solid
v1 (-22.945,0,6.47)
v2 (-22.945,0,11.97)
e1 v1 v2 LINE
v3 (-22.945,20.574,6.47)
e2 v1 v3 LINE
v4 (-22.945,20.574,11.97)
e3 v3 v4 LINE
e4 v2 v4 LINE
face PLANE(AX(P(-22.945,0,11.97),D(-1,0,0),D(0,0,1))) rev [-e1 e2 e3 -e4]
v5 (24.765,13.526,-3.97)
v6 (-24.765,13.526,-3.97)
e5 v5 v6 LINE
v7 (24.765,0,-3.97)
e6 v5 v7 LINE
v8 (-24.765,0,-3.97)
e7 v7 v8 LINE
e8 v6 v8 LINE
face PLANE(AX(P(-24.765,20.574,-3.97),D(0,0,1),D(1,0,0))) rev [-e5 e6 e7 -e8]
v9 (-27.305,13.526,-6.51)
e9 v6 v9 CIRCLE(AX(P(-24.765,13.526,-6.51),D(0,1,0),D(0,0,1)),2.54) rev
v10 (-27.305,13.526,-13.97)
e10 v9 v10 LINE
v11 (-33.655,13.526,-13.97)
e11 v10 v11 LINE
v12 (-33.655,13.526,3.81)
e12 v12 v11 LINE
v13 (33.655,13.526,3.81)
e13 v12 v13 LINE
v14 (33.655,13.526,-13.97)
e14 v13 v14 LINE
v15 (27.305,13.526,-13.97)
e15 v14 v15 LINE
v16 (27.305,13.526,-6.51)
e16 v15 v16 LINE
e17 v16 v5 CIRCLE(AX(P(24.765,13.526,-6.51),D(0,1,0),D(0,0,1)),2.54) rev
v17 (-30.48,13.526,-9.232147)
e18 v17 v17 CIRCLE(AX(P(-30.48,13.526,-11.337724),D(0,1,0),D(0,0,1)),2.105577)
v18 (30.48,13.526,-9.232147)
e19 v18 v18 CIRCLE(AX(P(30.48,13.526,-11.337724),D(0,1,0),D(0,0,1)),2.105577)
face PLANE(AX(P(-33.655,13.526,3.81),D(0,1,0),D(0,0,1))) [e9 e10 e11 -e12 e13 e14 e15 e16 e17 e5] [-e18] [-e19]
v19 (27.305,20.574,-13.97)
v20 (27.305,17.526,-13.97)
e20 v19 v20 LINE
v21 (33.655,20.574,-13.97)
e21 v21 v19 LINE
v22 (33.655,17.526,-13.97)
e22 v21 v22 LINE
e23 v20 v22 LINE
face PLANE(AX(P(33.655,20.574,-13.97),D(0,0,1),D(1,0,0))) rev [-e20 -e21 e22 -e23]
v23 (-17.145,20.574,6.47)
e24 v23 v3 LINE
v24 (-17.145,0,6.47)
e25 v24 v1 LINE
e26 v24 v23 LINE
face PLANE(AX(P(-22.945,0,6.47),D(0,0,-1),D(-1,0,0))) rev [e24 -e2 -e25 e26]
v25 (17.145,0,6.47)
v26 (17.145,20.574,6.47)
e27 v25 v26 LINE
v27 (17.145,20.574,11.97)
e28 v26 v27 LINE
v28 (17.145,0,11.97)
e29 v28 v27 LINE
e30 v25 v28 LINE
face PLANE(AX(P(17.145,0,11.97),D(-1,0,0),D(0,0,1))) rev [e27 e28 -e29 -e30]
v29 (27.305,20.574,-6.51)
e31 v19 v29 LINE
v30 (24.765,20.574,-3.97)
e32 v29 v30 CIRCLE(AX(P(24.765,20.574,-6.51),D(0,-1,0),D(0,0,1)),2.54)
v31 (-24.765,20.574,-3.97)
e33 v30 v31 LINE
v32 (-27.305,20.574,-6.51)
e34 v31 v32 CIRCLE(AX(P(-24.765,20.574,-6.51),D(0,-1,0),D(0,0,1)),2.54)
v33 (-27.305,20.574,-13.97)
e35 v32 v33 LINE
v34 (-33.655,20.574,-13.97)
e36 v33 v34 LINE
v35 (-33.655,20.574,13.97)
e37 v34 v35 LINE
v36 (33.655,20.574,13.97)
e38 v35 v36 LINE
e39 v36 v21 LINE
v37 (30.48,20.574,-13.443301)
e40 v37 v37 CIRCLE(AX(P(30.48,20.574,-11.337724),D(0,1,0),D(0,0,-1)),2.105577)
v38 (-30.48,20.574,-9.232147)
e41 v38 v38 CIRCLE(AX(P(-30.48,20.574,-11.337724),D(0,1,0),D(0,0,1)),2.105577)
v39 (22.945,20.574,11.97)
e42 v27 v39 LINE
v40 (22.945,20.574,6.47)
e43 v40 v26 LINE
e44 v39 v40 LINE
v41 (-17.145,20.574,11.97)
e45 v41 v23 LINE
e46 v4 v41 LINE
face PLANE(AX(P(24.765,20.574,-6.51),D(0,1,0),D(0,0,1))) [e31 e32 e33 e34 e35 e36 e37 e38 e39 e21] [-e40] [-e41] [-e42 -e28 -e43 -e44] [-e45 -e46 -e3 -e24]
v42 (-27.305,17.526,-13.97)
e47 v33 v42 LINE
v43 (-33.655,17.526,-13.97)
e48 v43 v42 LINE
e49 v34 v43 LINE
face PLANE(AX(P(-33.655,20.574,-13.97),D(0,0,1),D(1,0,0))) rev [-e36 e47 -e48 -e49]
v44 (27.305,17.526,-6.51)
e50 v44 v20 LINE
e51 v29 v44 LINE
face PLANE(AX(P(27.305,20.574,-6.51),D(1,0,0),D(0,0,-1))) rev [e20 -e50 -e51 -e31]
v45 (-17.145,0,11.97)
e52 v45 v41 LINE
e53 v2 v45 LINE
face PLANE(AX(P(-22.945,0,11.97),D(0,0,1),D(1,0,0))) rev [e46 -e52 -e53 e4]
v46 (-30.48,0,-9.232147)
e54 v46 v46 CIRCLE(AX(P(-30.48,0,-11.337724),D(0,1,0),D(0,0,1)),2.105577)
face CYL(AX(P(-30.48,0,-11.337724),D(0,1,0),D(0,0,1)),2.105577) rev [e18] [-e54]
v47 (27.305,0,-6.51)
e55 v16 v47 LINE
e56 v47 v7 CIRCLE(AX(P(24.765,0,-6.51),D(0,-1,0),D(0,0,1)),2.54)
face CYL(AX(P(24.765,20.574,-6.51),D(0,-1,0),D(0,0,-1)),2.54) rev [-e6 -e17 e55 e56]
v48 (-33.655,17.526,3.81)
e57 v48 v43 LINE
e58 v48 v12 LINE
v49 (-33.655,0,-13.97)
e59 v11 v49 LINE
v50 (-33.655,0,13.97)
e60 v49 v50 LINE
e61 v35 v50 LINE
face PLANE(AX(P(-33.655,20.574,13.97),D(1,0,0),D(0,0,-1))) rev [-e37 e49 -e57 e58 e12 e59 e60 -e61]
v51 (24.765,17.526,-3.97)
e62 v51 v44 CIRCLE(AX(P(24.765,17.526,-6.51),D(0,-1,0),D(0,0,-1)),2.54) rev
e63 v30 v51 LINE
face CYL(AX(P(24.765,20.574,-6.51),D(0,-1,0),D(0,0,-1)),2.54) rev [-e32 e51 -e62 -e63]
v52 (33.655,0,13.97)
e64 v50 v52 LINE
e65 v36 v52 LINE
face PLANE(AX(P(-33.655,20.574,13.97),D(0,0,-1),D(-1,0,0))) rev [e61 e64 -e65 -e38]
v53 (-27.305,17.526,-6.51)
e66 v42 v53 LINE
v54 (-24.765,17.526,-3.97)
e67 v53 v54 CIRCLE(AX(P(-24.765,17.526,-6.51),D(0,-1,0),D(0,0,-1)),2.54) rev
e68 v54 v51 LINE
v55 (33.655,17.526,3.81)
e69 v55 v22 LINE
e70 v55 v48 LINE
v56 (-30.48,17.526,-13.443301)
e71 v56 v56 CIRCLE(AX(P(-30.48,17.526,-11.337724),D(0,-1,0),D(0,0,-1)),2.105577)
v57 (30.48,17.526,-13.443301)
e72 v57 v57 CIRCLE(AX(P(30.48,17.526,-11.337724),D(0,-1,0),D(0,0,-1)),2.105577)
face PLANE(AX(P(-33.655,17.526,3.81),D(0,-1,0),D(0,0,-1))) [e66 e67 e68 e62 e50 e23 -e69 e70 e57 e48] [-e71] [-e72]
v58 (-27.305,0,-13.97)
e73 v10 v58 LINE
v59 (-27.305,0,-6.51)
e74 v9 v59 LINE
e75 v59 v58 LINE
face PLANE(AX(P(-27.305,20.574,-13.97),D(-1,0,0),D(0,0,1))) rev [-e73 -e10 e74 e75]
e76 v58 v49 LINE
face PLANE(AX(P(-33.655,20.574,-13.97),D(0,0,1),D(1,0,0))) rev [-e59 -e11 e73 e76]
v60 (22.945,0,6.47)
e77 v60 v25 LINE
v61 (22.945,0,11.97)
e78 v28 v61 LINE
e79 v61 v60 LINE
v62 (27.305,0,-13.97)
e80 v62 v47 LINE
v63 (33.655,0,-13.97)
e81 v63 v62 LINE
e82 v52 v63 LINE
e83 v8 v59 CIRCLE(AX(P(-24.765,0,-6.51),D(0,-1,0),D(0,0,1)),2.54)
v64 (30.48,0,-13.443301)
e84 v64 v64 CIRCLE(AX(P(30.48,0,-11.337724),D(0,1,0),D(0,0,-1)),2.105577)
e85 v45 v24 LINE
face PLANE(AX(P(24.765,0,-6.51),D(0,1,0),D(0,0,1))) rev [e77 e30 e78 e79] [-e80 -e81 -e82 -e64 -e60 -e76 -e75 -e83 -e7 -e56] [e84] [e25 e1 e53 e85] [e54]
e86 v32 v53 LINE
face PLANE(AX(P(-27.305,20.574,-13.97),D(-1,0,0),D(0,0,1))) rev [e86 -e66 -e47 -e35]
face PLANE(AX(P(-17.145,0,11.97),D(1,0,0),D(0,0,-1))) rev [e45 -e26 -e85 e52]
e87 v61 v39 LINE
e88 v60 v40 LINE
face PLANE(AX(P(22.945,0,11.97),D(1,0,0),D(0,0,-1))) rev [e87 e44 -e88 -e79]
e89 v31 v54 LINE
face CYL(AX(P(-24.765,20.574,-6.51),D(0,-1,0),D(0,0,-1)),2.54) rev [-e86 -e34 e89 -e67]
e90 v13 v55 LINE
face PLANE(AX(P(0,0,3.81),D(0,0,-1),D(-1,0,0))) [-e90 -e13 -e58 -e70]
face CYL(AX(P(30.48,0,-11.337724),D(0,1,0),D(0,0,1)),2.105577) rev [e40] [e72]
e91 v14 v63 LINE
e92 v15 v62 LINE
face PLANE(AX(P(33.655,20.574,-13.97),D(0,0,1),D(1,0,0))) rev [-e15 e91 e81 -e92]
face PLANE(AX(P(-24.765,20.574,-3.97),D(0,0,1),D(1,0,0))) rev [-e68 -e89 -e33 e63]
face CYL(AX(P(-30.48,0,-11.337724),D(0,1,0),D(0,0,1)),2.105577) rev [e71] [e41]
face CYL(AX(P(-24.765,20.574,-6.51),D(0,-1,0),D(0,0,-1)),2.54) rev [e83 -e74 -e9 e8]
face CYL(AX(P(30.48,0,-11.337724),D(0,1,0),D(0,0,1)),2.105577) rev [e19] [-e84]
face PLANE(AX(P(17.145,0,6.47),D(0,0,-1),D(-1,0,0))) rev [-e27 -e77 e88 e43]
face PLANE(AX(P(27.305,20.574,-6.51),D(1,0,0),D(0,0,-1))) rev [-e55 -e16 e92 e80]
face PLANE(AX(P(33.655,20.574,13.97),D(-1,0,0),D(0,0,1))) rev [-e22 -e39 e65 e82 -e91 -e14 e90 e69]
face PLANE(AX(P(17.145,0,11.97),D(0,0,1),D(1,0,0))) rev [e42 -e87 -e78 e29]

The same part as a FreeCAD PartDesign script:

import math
import FreeCAD as App
import Part
import Sketcher
Q = App.Units.Quantity

doc = App.newDocument("Part")
body = doc.addObject("PartDesign::Body", "Body")

# Sketch on XZ plane
sketch1 = body.newObject("Sketcher::SketchObject", "Sketch")
sketch1.AttachmentSupport = (doc.getObject("XZ_Plane"), [""])
sketch1.MapMode = "FlatFace"
sketch1.addGeometry([
    Part.LineSegment(App.Vector(-27.3, -14, 0), App.Vector(-33.7, -14, 0)),  # 0
    Part.LineSegment(App.Vector(-33.7, -14, 0), App.Vector(-33.7, 14, 0)),  # 1
    Part.LineSegment(App.Vector(-33.7, 14, 0), App.Vector(33.7, 14, 0)),  # 2
    Part.LineSegment(App.Vector(33.7, 14, 0), App.Vector(33.7, -14, 0)),  # 3
    Part.LineSegment(App.Vector(33.7, -14, 0), App.Vector(27.3, -14, 0)),  # 4
    Part.LineSegment(App.Vector(27.3, -14, 0), App.Vector(27.3, -6.5, 0)),  # 5
    Part.ArcOfCircle(Part.Circle(App.Vector(24.8, -6.5, 0), App.Vector(0, 0, 1), 2.5), math.radians(0), math.radians(90)),  # 6
    Part.LineSegment(App.Vector(24.8, -4, 0), App.Vector(-24.8, -4, 0)),  # 7
    Part.ArcOfCircle(Part.Circle(App.Vector(-24.8, -6.5, 0), App.Vector(0, 0, 1), 2.5), math.radians(90), math.radians(180)),  # 8
    Part.LineSegment(App.Vector(-27.3, -6.5, 0), App.Vector(-27.3, -14, 0)),  # 9
], False)
sketch1.addConstraint([
    Sketcher.Constraint("Coincident", 0, 2, 1, 1),
    Sketcher.Constraint("Coincident", 1, 2, 2, 1),
    Sketcher.Constraint("Coincident", 2, 2, 3, 1),
    Sketcher.Constraint("Coincident", 3, 2, 4, 1),
    Sketcher.Constraint("Coincident", 4, 2, 5, 1),
    Sketcher.Constraint("Tangent", 5, 2, 6, 1),
    Sketcher.Constraint("Tangent", 6, 2, 7, 1),
    Sketcher.Constraint("Tangent", 7, 2, 8, 1),
    Sketcher.Constraint("Tangent", 8, 2, 9, 1),
    Sketcher.Constraint("Coincident", 9, 2, 0, 1),
    Sketcher.Constraint("Horizontal", 0),
    Sketcher.Constraint("Vertical", 1),
    Sketcher.Constraint("Horizontal", 2),
    Sketcher.Constraint("Vertical", 3),
    Sketcher.Constraint("Horizontal", 4),
    Sketcher.Constraint("Vertical", 5),
    Sketcher.Constraint("Horizontal", 7),
    Sketcher.Constraint("Vertical", 9),
    Sketcher.Constraint("Equal", 6, 8),
    Sketcher.Constraint("Symmetric", 0, 2, 2, 2, -1, 1),
    Sketcher.Constraint("Symmetric", 4, 2, 9, 2, -2),
    Sketcher.Constraint("Radius", 6, Q("0.1 in")),
    Sketcher.Constraint("DistanceY", 1, 1, 1, 2, Q("1.1 in")),
    Sketcher.Constraint("DistanceX", 0, 2, 0, 1, Q("0.25 in")),
    Sketcher.Constraint("DistanceX", 2, 1, 2, 2, Q("2.65 in")),
    Sketcher.Constraint("DistanceY", 5, 1, 5, 2, Q("7.46 mm")),
])
pad1 = body.newObject("PartDesign::Pad", "Pad")
pad1.Profile = sketch1
pad1.Length = Q("0.81 in")
pad1.Reversed = True

# Sketch on XY plane
sketch2 = body.newObject("Sketcher::SketchObject", "Sketch001")
sketch2.AttachmentSupport = (doc.getObject("XY_Plane"), [""])
sketch2.MapMode = "FlatFace"
sketch2.addGeometry([
    Part.LineSegment(App.Vector(-33.7, 17.5, 0), App.Vector(-33.7, 13.5, 0)),
    Part.LineSegment(App.Vector(-33.7, 13.5, 0), App.Vector(33.7, 13.5, 0)),
    Part.LineSegment(App.Vector(33.7, 13.5, 0), App.Vector(33.7, 17.5, 0)),
    Part.LineSegment(App.Vector(33.7, 17.5, 0), App.Vector(-33.7, 17.5, 0)),
], False)
sketch2.addConstraint([
    Sketcher.Constraint("Coincident", 0, 2, 1, 1),
    Sketcher.Constraint("Coincident", 1, 2, 2, 1),
    Sketcher.Constraint("Coincident", 2, 2, 3, 1),
    Sketcher.Constraint("Coincident", 3, 2, 0, 1),
    Sketcher.Constraint("Vertical", 0),
    Sketcher.Constraint("Horizontal", 1),
    Sketcher.Constraint("Vertical", 2),
    Sketcher.Constraint("Horizontal", 3),
    Sketcher.Constraint("DistanceX", 1, 1, 1, 2, Q("2.65 in")),
    Sketcher.Constraint("DistanceY", -1, 1, 2, 2, Q("0.69 in")),
    Sketcher.Constraint("DistanceX", 0, 2, -1, 1, Q("1.325 in")),
    Sketcher.Constraint("DistanceY", 0, 2, 0, 1, Q("4 mm")),
])
pocket1 = body.newObject("PartDesign::Pocket", "Pocket")
pocket1.Profile = sketch2
pocket1.Type = "TwoLengths"
pocket1.Length = Q("0.15 in")
pocket1.Length2 = Q("0.56 in")
pocket1.Reversed = True

# Sketch on XZ plane
sketch3 = body.newObject("Sketcher::SketchObject", "Sketch002")
sketch3.AttachmentSupport = (doc.getObject("XZ_Plane"), [""])
sketch3.MapMode = "FlatFace"
sketch3.AttachmentOffset = App.Placement(App.Vector(0, 0, -0.81 * 25.4), App.Rotation())
sketch3.addGeometry([
    Part.Circle(App.Vector(-30.5, -11.3, 0), App.Vector(0, 0, 1), 2.1),
    Part.Circle(App.Vector(30.5, -11.3, 0), App.Vector(0, 0, 1), 2.1),
], False)
sketch3.addConstraint([
    Sketcher.Constraint("Equal", 0, 1),
    Sketcher.Constraint("Symmetric", 0, 3, 1, 3, -2),
    Sketcher.Constraint("DistanceX", 0, 3, -1, 1, Q("1.2 in")),
    Sketcher.Constraint("Diameter", 0, Q("4.211155 mm")),
    Sketcher.Constraint("DistanceY", 0, 3, -1, 1, Q("11.337724 mm")),
])
pocket2 = body.newObject("PartDesign::Pocket", "Pocket001")
pocket2.Profile = sketch3
pocket2.Type = "ThroughAll"
pocket2.Reversed = True

# Sketch on XZ plane
sketch4 = body.newObject("Sketcher::SketchObject", "Sketch003")
sketch4.AttachmentSupport = (doc.getObject("XZ_Plane"), [""])
sketch4.MapMode = "FlatFace"
sketch4.AttachmentOffset = App.Placement(App.Vector(0, 0, -0.81 * 25.4), App.Rotation())
sketch4.addGeometry([
    Part.LineSegment(App.Vector(17, 6, 0), App.Vector(17, 12, 0)),  # 0
    Part.LineSegment(App.Vector(17, 12, 0), App.Vector(23, 12, 0)),  # 1
    Part.LineSegment(App.Vector(23, 12, 0), App.Vector(23, 6, 0)),  # 2
    Part.LineSegment(App.Vector(23, 6, 0), App.Vector(17, 6, 0)),  # 3
    Part.LineSegment(App.Vector(-23, 6, 0), App.Vector(-23, 12, 0)),  # 4
    Part.LineSegment(App.Vector(-23, 12, 0), App.Vector(-17, 12, 0)),  # 5
    Part.LineSegment(App.Vector(-17, 12, 0), App.Vector(-17, 6, 0)),  # 6
    Part.LineSegment(App.Vector(-17, 6, 0), App.Vector(-23, 6, 0)),  # 7
], False)
sketch4.addConstraint([
    Sketcher.Constraint("Coincident", 0, 2, 1, 1),
    Sketcher.Constraint("Coincident", 1, 2, 2, 1),
    Sketcher.Constraint("Coincident", 2, 2, 3, 1),
    Sketcher.Constraint("Coincident", 3, 2, 0, 1),
    Sketcher.Constraint("Coincident", 4, 2, 5, 1),
    Sketcher.Constraint("Coincident", 5, 2, 6, 1),
    Sketcher.Constraint("Coincident", 6, 2, 7, 1),
    Sketcher.Constraint("Coincident", 7, 2, 4, 1),
    Sketcher.Constraint("Vertical", 0),
    Sketcher.Constraint("Horizontal", 1),
    Sketcher.Constraint("Vertical", 2),
    Sketcher.Constraint("Horizontal", 3),
    Sketcher.Constraint("Vertical", 4),
    Sketcher.Constraint("Horizontal", 5),
    Sketcher.Constraint("Vertical", 6),
    Sketcher.Constraint("Horizontal", 7),
    Sketcher.Constraint("Symmetric", 1, 2, 4, 2, -2),
    Sketcher.Constraint("Symmetric", 3, 2, 6, 2, -2),
    Sketcher.Constraint("DistanceX", 5, 2, 0, 2, Q("1.35 in")),
    Sketcher.Constraint("DistanceX", 1, 1, 1, 2, Q("5.8 mm")),
    Sketcher.Constraint("DistanceY", 0, 1, 0, 2, Q("5.5 mm")),
    Sketcher.Constraint("DistanceY", -1, 1, 0, 2, Q("11.97 mm")),
])
pocket3 = body.newObject("PartDesign::Pocket", "Pocket002")
pocket3.Profile = sketch4
pocket3.Type = "ThroughAll"
pocket3.Reversed = True

doc.recompute()
